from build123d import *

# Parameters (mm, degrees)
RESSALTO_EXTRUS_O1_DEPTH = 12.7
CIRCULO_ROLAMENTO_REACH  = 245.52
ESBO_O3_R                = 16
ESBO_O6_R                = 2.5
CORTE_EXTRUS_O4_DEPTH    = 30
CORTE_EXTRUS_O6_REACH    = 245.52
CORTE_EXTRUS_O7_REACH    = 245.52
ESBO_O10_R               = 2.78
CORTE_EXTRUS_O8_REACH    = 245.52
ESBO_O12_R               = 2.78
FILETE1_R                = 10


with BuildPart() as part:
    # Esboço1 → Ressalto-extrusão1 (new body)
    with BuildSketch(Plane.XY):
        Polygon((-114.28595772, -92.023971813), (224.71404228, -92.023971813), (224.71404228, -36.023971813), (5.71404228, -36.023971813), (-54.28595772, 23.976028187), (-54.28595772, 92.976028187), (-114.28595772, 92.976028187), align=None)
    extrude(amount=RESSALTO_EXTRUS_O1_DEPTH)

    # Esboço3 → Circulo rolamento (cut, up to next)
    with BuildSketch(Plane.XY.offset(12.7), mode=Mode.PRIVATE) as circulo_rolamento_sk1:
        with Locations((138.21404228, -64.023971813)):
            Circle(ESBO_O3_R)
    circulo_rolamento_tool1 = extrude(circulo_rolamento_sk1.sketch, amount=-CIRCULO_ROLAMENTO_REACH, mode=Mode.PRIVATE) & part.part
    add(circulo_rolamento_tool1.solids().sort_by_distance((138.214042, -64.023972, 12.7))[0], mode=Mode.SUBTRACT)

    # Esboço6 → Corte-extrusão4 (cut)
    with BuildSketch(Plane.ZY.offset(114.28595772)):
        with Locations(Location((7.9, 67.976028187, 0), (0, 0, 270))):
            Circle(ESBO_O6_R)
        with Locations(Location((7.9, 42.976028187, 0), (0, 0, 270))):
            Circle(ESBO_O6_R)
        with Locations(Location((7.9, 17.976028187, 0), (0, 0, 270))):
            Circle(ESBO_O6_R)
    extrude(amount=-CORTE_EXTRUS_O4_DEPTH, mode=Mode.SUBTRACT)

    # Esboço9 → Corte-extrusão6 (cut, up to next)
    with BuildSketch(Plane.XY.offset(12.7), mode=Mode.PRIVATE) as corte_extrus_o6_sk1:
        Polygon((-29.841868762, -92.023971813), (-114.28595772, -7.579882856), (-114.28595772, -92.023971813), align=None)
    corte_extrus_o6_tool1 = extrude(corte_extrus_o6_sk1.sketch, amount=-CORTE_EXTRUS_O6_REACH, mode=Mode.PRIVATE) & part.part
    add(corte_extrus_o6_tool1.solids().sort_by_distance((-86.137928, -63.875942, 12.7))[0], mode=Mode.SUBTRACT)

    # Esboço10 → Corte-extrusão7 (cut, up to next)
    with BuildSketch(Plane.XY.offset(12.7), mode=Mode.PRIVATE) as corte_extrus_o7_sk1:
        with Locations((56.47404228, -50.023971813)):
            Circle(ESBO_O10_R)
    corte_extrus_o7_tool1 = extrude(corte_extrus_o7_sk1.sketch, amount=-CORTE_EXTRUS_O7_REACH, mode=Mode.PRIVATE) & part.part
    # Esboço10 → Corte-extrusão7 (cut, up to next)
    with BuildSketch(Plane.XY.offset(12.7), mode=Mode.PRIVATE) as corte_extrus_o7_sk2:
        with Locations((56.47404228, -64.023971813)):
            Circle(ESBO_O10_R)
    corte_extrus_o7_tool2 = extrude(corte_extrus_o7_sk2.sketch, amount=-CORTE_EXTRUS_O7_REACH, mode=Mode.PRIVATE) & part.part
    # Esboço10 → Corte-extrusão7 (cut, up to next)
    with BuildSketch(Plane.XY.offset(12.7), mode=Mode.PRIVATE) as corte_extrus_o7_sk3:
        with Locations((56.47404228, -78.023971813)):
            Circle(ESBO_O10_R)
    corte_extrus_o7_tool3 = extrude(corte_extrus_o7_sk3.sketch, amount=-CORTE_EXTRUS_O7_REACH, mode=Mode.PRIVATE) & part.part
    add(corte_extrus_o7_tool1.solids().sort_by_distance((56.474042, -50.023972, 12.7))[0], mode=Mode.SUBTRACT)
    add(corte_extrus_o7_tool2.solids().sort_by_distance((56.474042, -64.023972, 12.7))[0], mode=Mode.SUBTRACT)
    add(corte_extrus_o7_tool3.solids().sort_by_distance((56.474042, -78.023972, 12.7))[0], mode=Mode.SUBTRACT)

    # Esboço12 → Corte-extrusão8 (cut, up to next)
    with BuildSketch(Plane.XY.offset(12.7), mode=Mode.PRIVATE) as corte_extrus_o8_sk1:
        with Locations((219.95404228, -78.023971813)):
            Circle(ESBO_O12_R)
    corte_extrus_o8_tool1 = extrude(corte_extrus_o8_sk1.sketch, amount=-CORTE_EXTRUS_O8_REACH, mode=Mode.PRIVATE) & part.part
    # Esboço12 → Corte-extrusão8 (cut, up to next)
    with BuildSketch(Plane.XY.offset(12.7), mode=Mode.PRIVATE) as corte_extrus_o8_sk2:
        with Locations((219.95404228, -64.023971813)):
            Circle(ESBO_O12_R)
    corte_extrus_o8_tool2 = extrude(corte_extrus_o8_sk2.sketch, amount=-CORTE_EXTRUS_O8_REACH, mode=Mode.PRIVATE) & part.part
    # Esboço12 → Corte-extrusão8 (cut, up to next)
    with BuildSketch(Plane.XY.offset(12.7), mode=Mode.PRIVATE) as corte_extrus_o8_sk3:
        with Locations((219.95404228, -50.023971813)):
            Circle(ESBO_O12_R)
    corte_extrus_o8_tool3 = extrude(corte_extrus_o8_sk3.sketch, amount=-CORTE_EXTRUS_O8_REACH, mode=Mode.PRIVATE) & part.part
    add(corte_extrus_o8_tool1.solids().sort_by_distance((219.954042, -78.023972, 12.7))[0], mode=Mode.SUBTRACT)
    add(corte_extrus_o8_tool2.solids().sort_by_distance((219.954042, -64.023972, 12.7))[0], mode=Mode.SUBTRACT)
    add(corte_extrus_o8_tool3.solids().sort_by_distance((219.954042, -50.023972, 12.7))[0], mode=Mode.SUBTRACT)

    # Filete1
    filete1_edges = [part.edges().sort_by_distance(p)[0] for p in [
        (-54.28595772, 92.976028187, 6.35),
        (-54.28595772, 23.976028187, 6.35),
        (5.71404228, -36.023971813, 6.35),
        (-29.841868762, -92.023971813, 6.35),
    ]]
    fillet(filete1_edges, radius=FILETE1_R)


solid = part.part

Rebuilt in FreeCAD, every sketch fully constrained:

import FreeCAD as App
import Part
import Sketcher
Q = App.Units.Quantity


def edges_at(feature, points):
    """Names of the edges that pass closest to the given points."""
    edges = feature.Shape.Edges
    near = lambda p: min(range(len(edges)), key=lambda i: edges[i].distToShape(Part.Vertex(*p))[0])
    return sorted({f"Edge{near(p) + 1}" for p in points})


def add_polygon(sketch, points):
    """Adds a closed chain of lines whose ends are joined by coincident constraints."""
    first, n = sketch.GeometryCount, len(points)
    for a, b in zip(points, points[1:] + points[:1]):
        sketch.addGeometry(Part.LineSegment(App.Vector(*a, 0), App.Vector(*b, 0)), False)
    for i in range(n):
        sketch.addConstraint(Sketcher.Constraint("Coincident", first + i, 2, first + (i + 1) % n, 1))

doc = App.newDocument("Part")
body = doc.addObject("PartDesign::Body", "Body")

sketch1 = doc.addObject("Sketcher::SketchObject", "Sketch")
body.addObject(sketch1)
sketch1.AttachmentSupport = (doc.XY_Plane, [""])
sketch1.MapMode = "FlatFace"
add_polygon(sketch1, [(-114, -92), (225, -92), (225, -36), (6, -36), (-54, 24), (-54, 93), (-114, 93)])
sketch1.addConstraint([
    Sketcher.Constraint("Horizontal", 0),
    Sketcher.Constraint("Vertical", 1),
    Sketcher.Constraint("Horizontal", 2),
    Sketcher.Constraint("Vertical", 4),
    Sketcher.Constraint("Horizontal", 5),
    Sketcher.Constraint("Vertical", 6),
    Sketcher.Constraint("DistanceX", 0, 1, 0, 2, Q("339 mm")),
    Sketcher.Constraint("DistanceX", 2, 2, 2, 1, Q("219 mm")),
    Sketcher.Constraint("DistanceX", 5, 2, 5, 1, Q("60 mm")),
    Sketcher.Constraint("DistanceY", 1, 1, 1, 2, Q("56 mm")),
    Sketcher.Constraint("DistanceY", 4, 1, 4, 2, Q("69 mm")),
    Sketcher.Constraint("DistanceY", 6, 2, 6, 1, Q("185 mm")),
    Sketcher.Constraint("DistanceY", 0, 2, -1, 1, Q("92.023972 mm")),
    Sketcher.Constraint("DistanceX", -1, 1, 0, 2, Q("224.714042 mm")),
])
pad1 = doc.addObject("PartDesign::Pad", "Pad")
body.addObject(pad1)
pad1.Profile = sketch1
pad1.Length = 12.7

sketch2 = doc.addObject("Sketcher::SketchObject", "Sketch001")
body.addObject(sketch2)
sketch2.AttachmentSupport = (doc.XY_Plane, [""])
sketch2.MapMode = "FlatFace"
sketch2.AttachmentOffset = App.Placement(App.Vector(0, 0, 12.7), App.Rotation())
sketch2.addGeometry(Part.Circle(App.Vector(138, -64, 0), App.Vector(0, 0, 1), 16), False)
sketch2.addConstraint([
    Sketcher.Constraint("Diameter", 0, Q("32 mm")),
    Sketcher.Constraint("DistanceY", 0, 3, -1, 1, Q("64.023972 mm")),
    Sketcher.Constraint("DistanceX", -1, 1, 0, 3, Q("138.214042 mm")),
])
pocket1 = doc.addObject("PartDesign::Pocket", "Pocket")
body.addObject(pocket1)
pocket1.Profile = sketch2
pocket1.Type = "UpToFirst"

sketch3 = doc.addObject("Sketcher::SketchObject", "Sketch002")
body.addObject(sketch3)
sketch3.AttachmentSupport = (doc.YZ_Plane, [""])
sketch3.MapMode = "FlatFace"
sketch3.AttachmentOffset = App.Placement(App.Vector(0, 0, -114.285958), App.Rotation())
sketch3.addGeometry([
    Part.Circle(App.Vector(68, 7.9, 0), App.Vector(0, 0, 1), 2.5),
    Part.Circle(App.Vector(43, 7.9, 0), App.Vector(0, 0, 1), 2.5),
    Part.Circle(App.Vector(18, 7.9, 0), App.Vector(0, 0, 1), 2.5),
], False)
sketch3.addConstraint([
    Sketcher.Constraint("Equal", 0, 1),
    Sketcher.Constraint("Equal", 1, 2),
    Sketcher.Constraint("Horizontal", 0, 3, 1, 3),
    Sketcher.Constraint("Horizontal", 1, 3, 2, 3),
    Sketcher.Constraint("Diameter", 0, Q("5 mm")),
    Sketcher.Constraint("DistanceX", 1, 3, 0, 3, Q("25 mm")),
    Sketcher.Constraint("DistanceX", 2, 3, 1, 3, Q("25 mm")),
    Sketcher.Constraint("DistanceY", -1, 1, 0, 3, Q("7.9 mm")),
    Sketcher.Constraint("DistanceX", -1, 1, 0, 3, Q("67.976028 mm")),
])
pocket2 = doc.addObject("PartDesign::Pocket", "Pocket001")
body.addObject(pocket2)
pocket2.Profile = sketch3
pocket2.Length = 30
pocket2.Reversed = True

sketch4 = doc.addObject("Sketcher::SketchObject", "Sketch003")
body.addObject(sketch4)
sketch4.AttachmentSupport = (doc.XY_Plane, [""])
sketch4.MapMode = "FlatFace"
sketch4.AttachmentOffset = App.Placement(App.Vector(0, 0, 12.7), App.Rotation())
add_polygon(sketch4, [(-30, -92), (-114, -8), (-114, -92)])
sketch4.addConstraint([
    Sketcher.Constraint("Vertical", 1),
    Sketcher.Constraint("Horizontal", 2),
    Sketcher.Constraint("Equal", 2, 1),
    Sketcher.Constraint("DistanceX", 2, 1, 2, 2, Q("84.444089 mm")),
    Sketcher.Constraint("DistanceY", 1, 2, -1, 1, Q("92.023972 mm")),
    Sketcher.Constraint("DistanceX", 2, 2, -1, 1, Q("29.841869 mm")),
])
pocket3 = doc.addObject("PartDesign::Pocket", "Pocket002")
body.addObject(pocket3)
pocket3.Profile = sketch4
pocket3.Type = "UpToFirst"

sketch5 = doc.addObject("Sketcher::SketchObject", "Sketch004")
body.addObject(sketch5)
sketch5.AttachmentSupport = (doc.XY_Plane, [""])
sketch5.MapMode = "FlatFace"
sketch5.AttachmentOffset = App.Placement(App.Vector(0, 0, 12.7), App.Rotation())
sketch5.addGeometry(Part.Circle(App.Vector(56.5, -50, 0), App.Vector(0, 0, 1), 2.8), False)
sketch5.addConstraint([
    Sketcher.Constraint("Diameter", 0, Q("5.56 mm")),
    Sketcher.Constraint("DistanceY", 0, 3, -1, 1, Q("50.023972 mm")),
    Sketcher.Constraint("DistanceX", -1, 1, 0, 3, Q("56.474042 mm")),
])
pocket4 = doc.addObject("PartDesign::Pocket", "Pocket003")
body.addObject(pocket4)
pocket4.Profile = sketch5
pocket4.Type = "UpToFirst"

sketch6 = doc.addObject("Sketcher::SketchObject", "Sketch005")
body.addObject(sketch6)
sketch6.AttachmentSupport = (doc.XY_Plane, [""])
sketch6.MapMode = "FlatFace"
sketch6.AttachmentOffset = App.Placement(App.Vector(0, 0, 12.7), App.Rotation())
sketch6.addGeometry(Part.Circle(App.Vector(56.5, -64, 0), App.Vector(0, 0, 1), 2.8), False)
sketch6.addConstraint([
    Sketcher.Constraint("Diameter", 0, Q("5.56 mm")),
    Sketcher.Constraint("DistanceY", 0, 3, -1, 1, Q("64.023972 mm")),
    Sketcher.Constraint("DistanceX", -1, 1, 0, 3, Q("56.474042 mm")),
])
pocket5 = doc.addObject("PartDesign::Pocket", "Pocket004")
body.addObject(pocket5)
pocket5.Profile = sketch6
pocket5.Type = "UpToFirst"

sketch7 = doc.addObject("Sketcher::SketchObject", "Sketch006")
body.addObject(sketch7)
sketch7.AttachmentSupport = (doc.XY_Plane, [""])
sketch7.MapMode = "FlatFace"
sketch7.AttachmentOffset = App.Placement(App.Vector(0, 0, 12.7), App.Rotation())
sketch7.addGeometry(Part.Circle(App.Vector(56.5, -78, 0), App.Vector(0, 0, 1), 2.8), False)
sketch7.addConstraint([
    Sketcher.Constraint("Diameter", 0, Q("5.56 mm")),
    Sketcher.Constraint("DistanceY", 0, 3, -1, 1, Q("78.023972 mm")),
    Sketcher.Constraint("DistanceX", -1, 1, 0, 3, Q("56.474042 mm")),
])
pocket6 = doc.addObject("PartDesign::Pocket", "Pocket005")
body.addObject(pocket6)
pocket6.Profile = sketch7
pocket6.Type = "UpToFirst"

sketch8 = doc.addObject("Sketcher::SketchObject", "Sketch007")
body.addObject(sketch8)
sketch8.AttachmentSupport = (doc.XY_Plane, [""])
sketch8.MapMode = "FlatFace"
sketch8.AttachmentOffset = App.Placement(App.Vector(0, 0, 12.7), App.Rotation())
sketch8.addGeometry(Part.Circle(App.Vector(220, -78, 0), App.Vector(0, 0, 1), 2.8), False)
sketch8.addConstraint([
    Sketcher.Constraint("Diameter", 0, Q("5.56 mm")),
    Sketcher.Constraint("DistanceY", 0, 3, -1, 1, Q("78.023972 mm")),
    Sketcher.Constraint("DistanceX", -1, 1, 0, 3, Q("219.954042 mm")),
])
pocket7 = doc.addObject("PartDesign::Pocket", "Pocket006")
body.addObject(pocket7)
pocket7.Profile = sketch8
pocket7.Type = "UpToFirst"

sketch9 = doc.addObject("Sketcher::SketchObject", "Sketch008")
body.addObject(sketch9)
sketch9.AttachmentSupport = (doc.XY_Plane, [""])
sketch9.MapMode = "FlatFace"
sketch9.AttachmentOffset = App.Placement(App.Vector(0, 0, 12.7), App.Rotation())
sketch9.addGeometry(Part.Circle(App.Vector(220, -64, 0), App.Vector(0, 0, 1), 2.8), False)
sketch9.addConstraint([
    Sketcher.Constraint("Diameter", 0, Q("5.56 mm")),
    Sketcher.Constraint("DistanceY", 0, 3, -1, 1, Q("64.023972 mm")),
    Sketcher.Constraint("DistanceX", -1, 1, 0, 3, Q("219.954042 mm")),
])
pocket8 = doc.addObject("PartDesign::Pocket", "Pocket007")
body.addObject(pocket8)
pocket8.Profile = sketch9
pocket8.Type = "UpToFirst"

sketch10 = doc.addObject("Sketcher::SketchObject", "Sketch009")
body.addObject(sketch10)
sketch10.AttachmentSupport = (doc.XY_Plane, [""])
sketch10.MapMode = "FlatFace"
sketch10.AttachmentOffset = App.Placement(App.Vector(0, 0, 12.7), App.Rotation())
sketch10.addGeometry(Part.Circle(App.Vector(220, -50, 0), App.Vector(0, 0, 1), 2.8), False)
sketch10.addConstraint([
    Sketcher.Constraint("Diameter", 0, Q("5.56 mm")),
    Sketcher.Constraint("DistanceY", 0, 3, -1, 1, Q("50.023972 mm")),
    Sketcher.Constraint("DistanceX", -1, 1, 0, 3, Q("219.954042 mm")),
])
pocket9 = doc.addObject("PartDesign::Pocket", "Pocket008")
body.addObject(pocket9)
pocket9.Profile = sketch10
pocket9.Type = "UpToFirst"
doc.recompute()

fillet = doc.addObject("PartDesign::Fillet", "Fillet")
body.addObject(fillet)
fillet.Base = (pocket9, edges_at(pocket9, [
    (-54.286, 92.976, 6.35),
    (-54.286, 23.976, 6.35),
    (5.714, -36.024, 6.35),
    (-29.842, -92.024, 6.35),
]))
fillet.Radius = 10

doc.recompute()
